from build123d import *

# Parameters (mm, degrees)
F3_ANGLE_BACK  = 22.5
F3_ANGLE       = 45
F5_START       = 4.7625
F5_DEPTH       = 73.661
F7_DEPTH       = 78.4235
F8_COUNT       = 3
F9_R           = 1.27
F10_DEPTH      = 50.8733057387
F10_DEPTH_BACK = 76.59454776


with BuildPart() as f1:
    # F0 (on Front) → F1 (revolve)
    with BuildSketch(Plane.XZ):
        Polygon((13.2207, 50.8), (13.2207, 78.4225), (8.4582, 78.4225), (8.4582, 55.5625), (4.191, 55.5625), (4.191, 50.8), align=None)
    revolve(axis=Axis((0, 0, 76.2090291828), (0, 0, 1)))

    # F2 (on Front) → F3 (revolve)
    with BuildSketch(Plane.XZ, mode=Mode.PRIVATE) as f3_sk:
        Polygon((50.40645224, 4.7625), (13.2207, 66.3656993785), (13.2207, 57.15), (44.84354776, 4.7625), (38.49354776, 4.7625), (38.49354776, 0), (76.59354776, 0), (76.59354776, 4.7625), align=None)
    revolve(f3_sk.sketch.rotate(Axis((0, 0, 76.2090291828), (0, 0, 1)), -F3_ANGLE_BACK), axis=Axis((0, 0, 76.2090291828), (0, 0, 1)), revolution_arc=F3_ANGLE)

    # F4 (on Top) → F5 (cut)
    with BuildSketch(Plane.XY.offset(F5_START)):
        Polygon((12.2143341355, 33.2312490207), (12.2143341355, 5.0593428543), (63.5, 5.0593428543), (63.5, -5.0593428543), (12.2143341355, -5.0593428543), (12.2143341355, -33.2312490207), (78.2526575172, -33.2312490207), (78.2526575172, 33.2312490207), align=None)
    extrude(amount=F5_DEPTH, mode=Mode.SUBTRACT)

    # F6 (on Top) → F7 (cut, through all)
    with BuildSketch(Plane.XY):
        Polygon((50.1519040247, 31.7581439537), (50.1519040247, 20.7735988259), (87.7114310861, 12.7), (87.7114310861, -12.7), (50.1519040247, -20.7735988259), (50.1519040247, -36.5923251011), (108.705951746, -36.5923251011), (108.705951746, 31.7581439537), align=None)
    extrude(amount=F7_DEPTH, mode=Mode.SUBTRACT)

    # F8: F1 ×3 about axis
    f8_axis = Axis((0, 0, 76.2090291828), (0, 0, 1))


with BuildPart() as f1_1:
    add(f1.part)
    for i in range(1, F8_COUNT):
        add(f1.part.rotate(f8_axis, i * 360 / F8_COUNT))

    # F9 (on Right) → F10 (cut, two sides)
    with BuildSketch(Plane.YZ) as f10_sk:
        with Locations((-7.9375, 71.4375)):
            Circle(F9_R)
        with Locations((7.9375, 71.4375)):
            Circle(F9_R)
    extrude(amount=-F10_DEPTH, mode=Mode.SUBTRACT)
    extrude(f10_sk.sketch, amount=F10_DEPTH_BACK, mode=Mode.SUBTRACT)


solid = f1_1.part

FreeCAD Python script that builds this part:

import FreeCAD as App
import Part
import Sketcher
from FreeCAD import Vector
Q = App.Units.Quantity


def add_polygon(sketch, points):
    """Adds a closed chain of lines whose ends are joined by coincident constraints."""
    first, n = sketch.GeometryCount, len(points)
    for a, b in zip(points, points[1:] + points[:1]):
        sketch.addGeometry(Part.LineSegment(App.Vector(*a, 0), App.Vector(*b, 0)), False)
    for i in range(n):
        sketch.addConstraint(Sketcher.Constraint("Coincident", first + i, 2, first + (i + 1) % n, 1))

doc = App.newDocument("Part")
body = doc.addObject("PartDesign::Body", "Body")

# Sketch on XZ plane
sketch1 = body.newObject("Sketcher::SketchObject", "Sketch")
sketch1.AttachmentSupport = (doc.getObject("XZ_Plane"), [""])
sketch1.MapMode = "FlatFace"
add_polygon(sketch1, [(13.2, 50.8), (13.2, 78.4), (8.5, 78.4), (8.5, 55.6), (4.2, 55.6), (4.2, 50.8)])  # lines 0-5
sketch1.addConstraint([
    Sketcher.Constraint("Vertical", 0),
    Sketcher.Constraint("Horizontal", 1),
    Sketcher.Constraint("Vertical", 2),
    Sketcher.Constraint("Horizontal", 3),
    Sketcher.Constraint("Vertical", 4),
    Sketcher.Constraint("Horizontal", 5),
    Sketcher.Constraint("Equal", 1, 4),
    Sketcher.Constraint("DistanceY", 2, 2, 2, 1, Q("0.9 in")),
    Sketcher.Constraint("DistanceY", -1, 1, 4, 2, Q("2 in")),
    Sketcher.Constraint("DistanceX", 1, 2, 1, 1, Q("0.1875 in")),
    Sketcher.Constraint("DistanceX", 3, 2, 3, 1, Q("0.168 in")),
    Sketcher.Constraint("DistanceX", -1, 1, 1, 2, Q("0.333 in")),
])
revolution = body.newObject("PartDesign::Revolution", "Revolution")
revolution.Profile = sketch1
revolution.ReferenceAxis = (sketch1, ["V_Axis"])
revolution.Angle = 360

# Sketch on an angled plane
sketch2 = body.newObject("Sketcher::SketchObject", "Sketch001")
sketch2.Placement = App.Placement(Vector(0, 0, 0), App.Rotation(Vector(0.923879533, -0.382683432, 0), Vector(0, 0, 1.000000001), Vector(-0.382683432, -0.923879533, 0), "ZXY"))
add_polygon(sketch2, [(50.4, 4.8), (13.2, 66.4), (13.2, 57.2), (44.8, 4.8), (38.5, 4.8), (38.5, 0), (76.6, 0), (76.6, 4.8)])  # lines 0-7
sketch2.addConstraint([
    Sketcher.Constraint("Vertical", 1),
    Sketcher.Constraint("Horizontal", 3),
    Sketcher.Constraint("Vertical", 4),
    Sketcher.Constraint("Horizontal", 5),
    Sketcher.Constraint("Vertical", 6),
    Sketcher.Constraint("Horizontal", 7),
    Sketcher.Constraint("PointOnObject", 4, 2, -1),
    Sketcher.Constraint("Parallel", 0, 2),
    Sketcher.Constraint("Horizontal", 3, 2, 6, 2),
    Sketcher.Constraint("DistanceX", 5, 1, 5, 2, Q("1.5 in")),
    Sketcher.Constraint("DistanceX", 3, 2, 3, 1, Q("0.25 in")),
    Sketcher.Constraint("DistanceY", 4, 2, 4, 1, Q("0.1875 in")),
    Sketcher.Constraint("DistanceY", -1, 1, 1, 2, Q("2.25 in")),
    Sketcher.Constraint("DistanceY", 1, 2, 1, 1, Q("9.215699 mm")),
    Sketcher.Constraint("DistanceX", -1, 1, 0, 2, Q("0.5205 in")),
    Sketcher.Constraint("Distance", 2, Q("61.191949 mm")),
])
revolution2 = body.newObject("PartDesign::Revolution", "Revolution001")
revolution2.Profile = sketch2
revolution2.ReferenceAxis = (sketch2, ["V_Axis"])
revolution2.Angle = 45

# Sketch on XY plane
sketch3 = body.newObject("Sketcher::SketchObject", "Sketch002")
sketch3.AttachmentSupport = (doc.getObject("XY_Plane"), [""])
sketch3.MapMode = "FlatFace"
sketch3.AttachmentOffset = App.Placement(Vector(0, 0, 0.1875 * 25.4), App.Rotation())
add_polygon(sketch3, [(12, 33), (12, 5), (64, 5), (64, -5), (12, -5), (12, -33), (78, -33), (78, 33)])  # lines 0-7
sketch3.addConstraint([
    Sketcher.Constraint("Vertical", 0),
    Sketcher.Constraint("Horizontal", 1),
    Sketcher.Constraint("Vertical", 2),
    Sketcher.Constraint("Horizontal", 3),
    Sketcher.Constraint("Vertical", 4),
    Sketcher.Constraint("Horizontal", 5),
    Sketcher.Constraint("Vertical", 6),
    Sketcher.Constraint("Horizontal", 7),
    Sketcher.Constraint("Symmetric", 0, 2, 3, 2, -1),
    Sketcher.Constraint("Equal", 0, 4),
    Sketcher.Constraint("DistanceX", -1, 1, 1, 2, Q("2.5 in")),
    Sketcher.Constraint("DistanceY", 6, 1, 6, 2, Q("66.462498 mm")),
    Sketcher.Constraint("DistanceX", 1, 1, 1, 2, Q("51.285666 mm")),
    Sketcher.Constraint("DistanceX", 5, 1, 5, 2, Q("66.038323 mm")),
    Sketcher.Constraint("DistanceY", 0, 2, 0, 1, Q("28.171906 mm")),
])
pocket1 = body.newObject("PartDesign::Pocket", "Pocket")
pocket1.Profile = sketch3
pocket1.Length = 73.661
pocket1.Reversed = True

# Sketch on XY plane
sketch4 = body.newObject("Sketcher::SketchObject", "Sketch003")
sketch4.AttachmentSupport = (doc.getObject("XY_Plane"), [""])
sketch4.MapMode = "FlatFace"
add_polygon(sketch4, [(50, 32), (50, 21), (88, 13), (88, -13), (50, -21), (50, -37), (109, -37), (109, 32)])  # lines 0-7
sketch4.addConstraint([
    Sketcher.Constraint("Vertical", 0),
    Sketcher.Constraint("Vertical", 2),
    Sketcher.Constraint("Vertical", 4),
    Sketcher.Constraint("Horizontal", 5),
    Sketcher.Constraint("Vertical", 6),
    Sketcher.Constraint("Horizontal", 7),
    Sketcher.Constraint("Symmetric", 0, 2, 3, 2, -1),
    Sketcher.Constraint("Equal", 1, 3),
    Sketcher.Constraint("DistanceY", 2, 2, 2, 1, Q("1 in")),
    Sketcher.Constraint("DistanceY", 6, 1, 6, 2, Q("68.350469 mm")),
    Sketcher.Constraint("DistanceY", -1, 1, 0, 2, Q("20.773599 mm")),
    Sketcher.Constraint("DistanceX", 5, 1, 5, 2, Q("58.554048 mm")),
    Sketcher.Constraint("DistanceY", 0, 2, 0, 1, Q("10.984545 mm")),
    Sketcher.Constraint("DistanceX", -1, 1, 1, 2, Q("87.711431 mm")),
    Sketcher.Constraint("DistanceX", -1, 1, 5, 2, Q("108.705952 mm")),
])
pocket2 = body.newObject("PartDesign::Pocket", "Pocket001")
pocket2.Profile = sketch4
pocket2.Type = "ThroughAll"
pocket2.Reversed = True
body2 = doc.addObject("PartDesign::Body", "Body001")
doc.recompute()

body2.BaseFeature = body
doc.recompute()

body3 = doc.addObject("PartDesign::Body", "Body002")
body3.BaseFeature = body
body3.Placement = App.Placement(Vector(0, 0, 0), App.Rotation(Vector(0, 0, 1), 120))
boolean = body2.newObject("PartDesign::Boolean", "Boolean")
boolean.Type = "Fuse"
boolean.addObjects([body3])
doc.recompute()

body.Placement = App.Placement(Vector(0, 0, 0), App.Rotation(Vector(0, 0, 1), 240))
boolean2 = body2.newObject("PartDesign::Boolean", "Boolean001")
boolean2.Type = "Fuse"
boolean2.addObjects([body])

# Sketch on YZ plane
sketch5 = body2.newObject("Sketcher::SketchObject", "Sketch004")
sketch5.AttachmentSupport = (doc.getObject("YZ_Plane001"), [""])
sketch5.MapMode = "FlatFace"
sketch5.addGeometry([
    Part.Circle(Vector(-7.9, 71.4, 0), Vector(0, 0, 1), 1.3),
    Part.Circle(Vector(7.9, 71.4, 0), Vector(0, 0, 1), 1.3),
], False)
sketch5.addConstraint([
    Sketcher.Constraint("Equal", 0, 1),
    Sketcher.Constraint("Symmetric", 0, 3, 1, 3, -2),
    Sketcher.Constraint("Diameter", 0, Q("0.1 in")),
    Sketcher.Constraint("DistanceX", 0, 3, -1, 1, Q("0.3125 in")),
    Sketcher.Constraint("DistanceY", -1, 1, 0, 3, Q("2.8125 in")),
])
pocket3 = body2.newObject("PartDesign::Pocket", "Pocket002")
pocket3.Profile = sketch5
pocket3.Type = "ThroughAll"
pocket3.Midplane = True

doc.recompute()
